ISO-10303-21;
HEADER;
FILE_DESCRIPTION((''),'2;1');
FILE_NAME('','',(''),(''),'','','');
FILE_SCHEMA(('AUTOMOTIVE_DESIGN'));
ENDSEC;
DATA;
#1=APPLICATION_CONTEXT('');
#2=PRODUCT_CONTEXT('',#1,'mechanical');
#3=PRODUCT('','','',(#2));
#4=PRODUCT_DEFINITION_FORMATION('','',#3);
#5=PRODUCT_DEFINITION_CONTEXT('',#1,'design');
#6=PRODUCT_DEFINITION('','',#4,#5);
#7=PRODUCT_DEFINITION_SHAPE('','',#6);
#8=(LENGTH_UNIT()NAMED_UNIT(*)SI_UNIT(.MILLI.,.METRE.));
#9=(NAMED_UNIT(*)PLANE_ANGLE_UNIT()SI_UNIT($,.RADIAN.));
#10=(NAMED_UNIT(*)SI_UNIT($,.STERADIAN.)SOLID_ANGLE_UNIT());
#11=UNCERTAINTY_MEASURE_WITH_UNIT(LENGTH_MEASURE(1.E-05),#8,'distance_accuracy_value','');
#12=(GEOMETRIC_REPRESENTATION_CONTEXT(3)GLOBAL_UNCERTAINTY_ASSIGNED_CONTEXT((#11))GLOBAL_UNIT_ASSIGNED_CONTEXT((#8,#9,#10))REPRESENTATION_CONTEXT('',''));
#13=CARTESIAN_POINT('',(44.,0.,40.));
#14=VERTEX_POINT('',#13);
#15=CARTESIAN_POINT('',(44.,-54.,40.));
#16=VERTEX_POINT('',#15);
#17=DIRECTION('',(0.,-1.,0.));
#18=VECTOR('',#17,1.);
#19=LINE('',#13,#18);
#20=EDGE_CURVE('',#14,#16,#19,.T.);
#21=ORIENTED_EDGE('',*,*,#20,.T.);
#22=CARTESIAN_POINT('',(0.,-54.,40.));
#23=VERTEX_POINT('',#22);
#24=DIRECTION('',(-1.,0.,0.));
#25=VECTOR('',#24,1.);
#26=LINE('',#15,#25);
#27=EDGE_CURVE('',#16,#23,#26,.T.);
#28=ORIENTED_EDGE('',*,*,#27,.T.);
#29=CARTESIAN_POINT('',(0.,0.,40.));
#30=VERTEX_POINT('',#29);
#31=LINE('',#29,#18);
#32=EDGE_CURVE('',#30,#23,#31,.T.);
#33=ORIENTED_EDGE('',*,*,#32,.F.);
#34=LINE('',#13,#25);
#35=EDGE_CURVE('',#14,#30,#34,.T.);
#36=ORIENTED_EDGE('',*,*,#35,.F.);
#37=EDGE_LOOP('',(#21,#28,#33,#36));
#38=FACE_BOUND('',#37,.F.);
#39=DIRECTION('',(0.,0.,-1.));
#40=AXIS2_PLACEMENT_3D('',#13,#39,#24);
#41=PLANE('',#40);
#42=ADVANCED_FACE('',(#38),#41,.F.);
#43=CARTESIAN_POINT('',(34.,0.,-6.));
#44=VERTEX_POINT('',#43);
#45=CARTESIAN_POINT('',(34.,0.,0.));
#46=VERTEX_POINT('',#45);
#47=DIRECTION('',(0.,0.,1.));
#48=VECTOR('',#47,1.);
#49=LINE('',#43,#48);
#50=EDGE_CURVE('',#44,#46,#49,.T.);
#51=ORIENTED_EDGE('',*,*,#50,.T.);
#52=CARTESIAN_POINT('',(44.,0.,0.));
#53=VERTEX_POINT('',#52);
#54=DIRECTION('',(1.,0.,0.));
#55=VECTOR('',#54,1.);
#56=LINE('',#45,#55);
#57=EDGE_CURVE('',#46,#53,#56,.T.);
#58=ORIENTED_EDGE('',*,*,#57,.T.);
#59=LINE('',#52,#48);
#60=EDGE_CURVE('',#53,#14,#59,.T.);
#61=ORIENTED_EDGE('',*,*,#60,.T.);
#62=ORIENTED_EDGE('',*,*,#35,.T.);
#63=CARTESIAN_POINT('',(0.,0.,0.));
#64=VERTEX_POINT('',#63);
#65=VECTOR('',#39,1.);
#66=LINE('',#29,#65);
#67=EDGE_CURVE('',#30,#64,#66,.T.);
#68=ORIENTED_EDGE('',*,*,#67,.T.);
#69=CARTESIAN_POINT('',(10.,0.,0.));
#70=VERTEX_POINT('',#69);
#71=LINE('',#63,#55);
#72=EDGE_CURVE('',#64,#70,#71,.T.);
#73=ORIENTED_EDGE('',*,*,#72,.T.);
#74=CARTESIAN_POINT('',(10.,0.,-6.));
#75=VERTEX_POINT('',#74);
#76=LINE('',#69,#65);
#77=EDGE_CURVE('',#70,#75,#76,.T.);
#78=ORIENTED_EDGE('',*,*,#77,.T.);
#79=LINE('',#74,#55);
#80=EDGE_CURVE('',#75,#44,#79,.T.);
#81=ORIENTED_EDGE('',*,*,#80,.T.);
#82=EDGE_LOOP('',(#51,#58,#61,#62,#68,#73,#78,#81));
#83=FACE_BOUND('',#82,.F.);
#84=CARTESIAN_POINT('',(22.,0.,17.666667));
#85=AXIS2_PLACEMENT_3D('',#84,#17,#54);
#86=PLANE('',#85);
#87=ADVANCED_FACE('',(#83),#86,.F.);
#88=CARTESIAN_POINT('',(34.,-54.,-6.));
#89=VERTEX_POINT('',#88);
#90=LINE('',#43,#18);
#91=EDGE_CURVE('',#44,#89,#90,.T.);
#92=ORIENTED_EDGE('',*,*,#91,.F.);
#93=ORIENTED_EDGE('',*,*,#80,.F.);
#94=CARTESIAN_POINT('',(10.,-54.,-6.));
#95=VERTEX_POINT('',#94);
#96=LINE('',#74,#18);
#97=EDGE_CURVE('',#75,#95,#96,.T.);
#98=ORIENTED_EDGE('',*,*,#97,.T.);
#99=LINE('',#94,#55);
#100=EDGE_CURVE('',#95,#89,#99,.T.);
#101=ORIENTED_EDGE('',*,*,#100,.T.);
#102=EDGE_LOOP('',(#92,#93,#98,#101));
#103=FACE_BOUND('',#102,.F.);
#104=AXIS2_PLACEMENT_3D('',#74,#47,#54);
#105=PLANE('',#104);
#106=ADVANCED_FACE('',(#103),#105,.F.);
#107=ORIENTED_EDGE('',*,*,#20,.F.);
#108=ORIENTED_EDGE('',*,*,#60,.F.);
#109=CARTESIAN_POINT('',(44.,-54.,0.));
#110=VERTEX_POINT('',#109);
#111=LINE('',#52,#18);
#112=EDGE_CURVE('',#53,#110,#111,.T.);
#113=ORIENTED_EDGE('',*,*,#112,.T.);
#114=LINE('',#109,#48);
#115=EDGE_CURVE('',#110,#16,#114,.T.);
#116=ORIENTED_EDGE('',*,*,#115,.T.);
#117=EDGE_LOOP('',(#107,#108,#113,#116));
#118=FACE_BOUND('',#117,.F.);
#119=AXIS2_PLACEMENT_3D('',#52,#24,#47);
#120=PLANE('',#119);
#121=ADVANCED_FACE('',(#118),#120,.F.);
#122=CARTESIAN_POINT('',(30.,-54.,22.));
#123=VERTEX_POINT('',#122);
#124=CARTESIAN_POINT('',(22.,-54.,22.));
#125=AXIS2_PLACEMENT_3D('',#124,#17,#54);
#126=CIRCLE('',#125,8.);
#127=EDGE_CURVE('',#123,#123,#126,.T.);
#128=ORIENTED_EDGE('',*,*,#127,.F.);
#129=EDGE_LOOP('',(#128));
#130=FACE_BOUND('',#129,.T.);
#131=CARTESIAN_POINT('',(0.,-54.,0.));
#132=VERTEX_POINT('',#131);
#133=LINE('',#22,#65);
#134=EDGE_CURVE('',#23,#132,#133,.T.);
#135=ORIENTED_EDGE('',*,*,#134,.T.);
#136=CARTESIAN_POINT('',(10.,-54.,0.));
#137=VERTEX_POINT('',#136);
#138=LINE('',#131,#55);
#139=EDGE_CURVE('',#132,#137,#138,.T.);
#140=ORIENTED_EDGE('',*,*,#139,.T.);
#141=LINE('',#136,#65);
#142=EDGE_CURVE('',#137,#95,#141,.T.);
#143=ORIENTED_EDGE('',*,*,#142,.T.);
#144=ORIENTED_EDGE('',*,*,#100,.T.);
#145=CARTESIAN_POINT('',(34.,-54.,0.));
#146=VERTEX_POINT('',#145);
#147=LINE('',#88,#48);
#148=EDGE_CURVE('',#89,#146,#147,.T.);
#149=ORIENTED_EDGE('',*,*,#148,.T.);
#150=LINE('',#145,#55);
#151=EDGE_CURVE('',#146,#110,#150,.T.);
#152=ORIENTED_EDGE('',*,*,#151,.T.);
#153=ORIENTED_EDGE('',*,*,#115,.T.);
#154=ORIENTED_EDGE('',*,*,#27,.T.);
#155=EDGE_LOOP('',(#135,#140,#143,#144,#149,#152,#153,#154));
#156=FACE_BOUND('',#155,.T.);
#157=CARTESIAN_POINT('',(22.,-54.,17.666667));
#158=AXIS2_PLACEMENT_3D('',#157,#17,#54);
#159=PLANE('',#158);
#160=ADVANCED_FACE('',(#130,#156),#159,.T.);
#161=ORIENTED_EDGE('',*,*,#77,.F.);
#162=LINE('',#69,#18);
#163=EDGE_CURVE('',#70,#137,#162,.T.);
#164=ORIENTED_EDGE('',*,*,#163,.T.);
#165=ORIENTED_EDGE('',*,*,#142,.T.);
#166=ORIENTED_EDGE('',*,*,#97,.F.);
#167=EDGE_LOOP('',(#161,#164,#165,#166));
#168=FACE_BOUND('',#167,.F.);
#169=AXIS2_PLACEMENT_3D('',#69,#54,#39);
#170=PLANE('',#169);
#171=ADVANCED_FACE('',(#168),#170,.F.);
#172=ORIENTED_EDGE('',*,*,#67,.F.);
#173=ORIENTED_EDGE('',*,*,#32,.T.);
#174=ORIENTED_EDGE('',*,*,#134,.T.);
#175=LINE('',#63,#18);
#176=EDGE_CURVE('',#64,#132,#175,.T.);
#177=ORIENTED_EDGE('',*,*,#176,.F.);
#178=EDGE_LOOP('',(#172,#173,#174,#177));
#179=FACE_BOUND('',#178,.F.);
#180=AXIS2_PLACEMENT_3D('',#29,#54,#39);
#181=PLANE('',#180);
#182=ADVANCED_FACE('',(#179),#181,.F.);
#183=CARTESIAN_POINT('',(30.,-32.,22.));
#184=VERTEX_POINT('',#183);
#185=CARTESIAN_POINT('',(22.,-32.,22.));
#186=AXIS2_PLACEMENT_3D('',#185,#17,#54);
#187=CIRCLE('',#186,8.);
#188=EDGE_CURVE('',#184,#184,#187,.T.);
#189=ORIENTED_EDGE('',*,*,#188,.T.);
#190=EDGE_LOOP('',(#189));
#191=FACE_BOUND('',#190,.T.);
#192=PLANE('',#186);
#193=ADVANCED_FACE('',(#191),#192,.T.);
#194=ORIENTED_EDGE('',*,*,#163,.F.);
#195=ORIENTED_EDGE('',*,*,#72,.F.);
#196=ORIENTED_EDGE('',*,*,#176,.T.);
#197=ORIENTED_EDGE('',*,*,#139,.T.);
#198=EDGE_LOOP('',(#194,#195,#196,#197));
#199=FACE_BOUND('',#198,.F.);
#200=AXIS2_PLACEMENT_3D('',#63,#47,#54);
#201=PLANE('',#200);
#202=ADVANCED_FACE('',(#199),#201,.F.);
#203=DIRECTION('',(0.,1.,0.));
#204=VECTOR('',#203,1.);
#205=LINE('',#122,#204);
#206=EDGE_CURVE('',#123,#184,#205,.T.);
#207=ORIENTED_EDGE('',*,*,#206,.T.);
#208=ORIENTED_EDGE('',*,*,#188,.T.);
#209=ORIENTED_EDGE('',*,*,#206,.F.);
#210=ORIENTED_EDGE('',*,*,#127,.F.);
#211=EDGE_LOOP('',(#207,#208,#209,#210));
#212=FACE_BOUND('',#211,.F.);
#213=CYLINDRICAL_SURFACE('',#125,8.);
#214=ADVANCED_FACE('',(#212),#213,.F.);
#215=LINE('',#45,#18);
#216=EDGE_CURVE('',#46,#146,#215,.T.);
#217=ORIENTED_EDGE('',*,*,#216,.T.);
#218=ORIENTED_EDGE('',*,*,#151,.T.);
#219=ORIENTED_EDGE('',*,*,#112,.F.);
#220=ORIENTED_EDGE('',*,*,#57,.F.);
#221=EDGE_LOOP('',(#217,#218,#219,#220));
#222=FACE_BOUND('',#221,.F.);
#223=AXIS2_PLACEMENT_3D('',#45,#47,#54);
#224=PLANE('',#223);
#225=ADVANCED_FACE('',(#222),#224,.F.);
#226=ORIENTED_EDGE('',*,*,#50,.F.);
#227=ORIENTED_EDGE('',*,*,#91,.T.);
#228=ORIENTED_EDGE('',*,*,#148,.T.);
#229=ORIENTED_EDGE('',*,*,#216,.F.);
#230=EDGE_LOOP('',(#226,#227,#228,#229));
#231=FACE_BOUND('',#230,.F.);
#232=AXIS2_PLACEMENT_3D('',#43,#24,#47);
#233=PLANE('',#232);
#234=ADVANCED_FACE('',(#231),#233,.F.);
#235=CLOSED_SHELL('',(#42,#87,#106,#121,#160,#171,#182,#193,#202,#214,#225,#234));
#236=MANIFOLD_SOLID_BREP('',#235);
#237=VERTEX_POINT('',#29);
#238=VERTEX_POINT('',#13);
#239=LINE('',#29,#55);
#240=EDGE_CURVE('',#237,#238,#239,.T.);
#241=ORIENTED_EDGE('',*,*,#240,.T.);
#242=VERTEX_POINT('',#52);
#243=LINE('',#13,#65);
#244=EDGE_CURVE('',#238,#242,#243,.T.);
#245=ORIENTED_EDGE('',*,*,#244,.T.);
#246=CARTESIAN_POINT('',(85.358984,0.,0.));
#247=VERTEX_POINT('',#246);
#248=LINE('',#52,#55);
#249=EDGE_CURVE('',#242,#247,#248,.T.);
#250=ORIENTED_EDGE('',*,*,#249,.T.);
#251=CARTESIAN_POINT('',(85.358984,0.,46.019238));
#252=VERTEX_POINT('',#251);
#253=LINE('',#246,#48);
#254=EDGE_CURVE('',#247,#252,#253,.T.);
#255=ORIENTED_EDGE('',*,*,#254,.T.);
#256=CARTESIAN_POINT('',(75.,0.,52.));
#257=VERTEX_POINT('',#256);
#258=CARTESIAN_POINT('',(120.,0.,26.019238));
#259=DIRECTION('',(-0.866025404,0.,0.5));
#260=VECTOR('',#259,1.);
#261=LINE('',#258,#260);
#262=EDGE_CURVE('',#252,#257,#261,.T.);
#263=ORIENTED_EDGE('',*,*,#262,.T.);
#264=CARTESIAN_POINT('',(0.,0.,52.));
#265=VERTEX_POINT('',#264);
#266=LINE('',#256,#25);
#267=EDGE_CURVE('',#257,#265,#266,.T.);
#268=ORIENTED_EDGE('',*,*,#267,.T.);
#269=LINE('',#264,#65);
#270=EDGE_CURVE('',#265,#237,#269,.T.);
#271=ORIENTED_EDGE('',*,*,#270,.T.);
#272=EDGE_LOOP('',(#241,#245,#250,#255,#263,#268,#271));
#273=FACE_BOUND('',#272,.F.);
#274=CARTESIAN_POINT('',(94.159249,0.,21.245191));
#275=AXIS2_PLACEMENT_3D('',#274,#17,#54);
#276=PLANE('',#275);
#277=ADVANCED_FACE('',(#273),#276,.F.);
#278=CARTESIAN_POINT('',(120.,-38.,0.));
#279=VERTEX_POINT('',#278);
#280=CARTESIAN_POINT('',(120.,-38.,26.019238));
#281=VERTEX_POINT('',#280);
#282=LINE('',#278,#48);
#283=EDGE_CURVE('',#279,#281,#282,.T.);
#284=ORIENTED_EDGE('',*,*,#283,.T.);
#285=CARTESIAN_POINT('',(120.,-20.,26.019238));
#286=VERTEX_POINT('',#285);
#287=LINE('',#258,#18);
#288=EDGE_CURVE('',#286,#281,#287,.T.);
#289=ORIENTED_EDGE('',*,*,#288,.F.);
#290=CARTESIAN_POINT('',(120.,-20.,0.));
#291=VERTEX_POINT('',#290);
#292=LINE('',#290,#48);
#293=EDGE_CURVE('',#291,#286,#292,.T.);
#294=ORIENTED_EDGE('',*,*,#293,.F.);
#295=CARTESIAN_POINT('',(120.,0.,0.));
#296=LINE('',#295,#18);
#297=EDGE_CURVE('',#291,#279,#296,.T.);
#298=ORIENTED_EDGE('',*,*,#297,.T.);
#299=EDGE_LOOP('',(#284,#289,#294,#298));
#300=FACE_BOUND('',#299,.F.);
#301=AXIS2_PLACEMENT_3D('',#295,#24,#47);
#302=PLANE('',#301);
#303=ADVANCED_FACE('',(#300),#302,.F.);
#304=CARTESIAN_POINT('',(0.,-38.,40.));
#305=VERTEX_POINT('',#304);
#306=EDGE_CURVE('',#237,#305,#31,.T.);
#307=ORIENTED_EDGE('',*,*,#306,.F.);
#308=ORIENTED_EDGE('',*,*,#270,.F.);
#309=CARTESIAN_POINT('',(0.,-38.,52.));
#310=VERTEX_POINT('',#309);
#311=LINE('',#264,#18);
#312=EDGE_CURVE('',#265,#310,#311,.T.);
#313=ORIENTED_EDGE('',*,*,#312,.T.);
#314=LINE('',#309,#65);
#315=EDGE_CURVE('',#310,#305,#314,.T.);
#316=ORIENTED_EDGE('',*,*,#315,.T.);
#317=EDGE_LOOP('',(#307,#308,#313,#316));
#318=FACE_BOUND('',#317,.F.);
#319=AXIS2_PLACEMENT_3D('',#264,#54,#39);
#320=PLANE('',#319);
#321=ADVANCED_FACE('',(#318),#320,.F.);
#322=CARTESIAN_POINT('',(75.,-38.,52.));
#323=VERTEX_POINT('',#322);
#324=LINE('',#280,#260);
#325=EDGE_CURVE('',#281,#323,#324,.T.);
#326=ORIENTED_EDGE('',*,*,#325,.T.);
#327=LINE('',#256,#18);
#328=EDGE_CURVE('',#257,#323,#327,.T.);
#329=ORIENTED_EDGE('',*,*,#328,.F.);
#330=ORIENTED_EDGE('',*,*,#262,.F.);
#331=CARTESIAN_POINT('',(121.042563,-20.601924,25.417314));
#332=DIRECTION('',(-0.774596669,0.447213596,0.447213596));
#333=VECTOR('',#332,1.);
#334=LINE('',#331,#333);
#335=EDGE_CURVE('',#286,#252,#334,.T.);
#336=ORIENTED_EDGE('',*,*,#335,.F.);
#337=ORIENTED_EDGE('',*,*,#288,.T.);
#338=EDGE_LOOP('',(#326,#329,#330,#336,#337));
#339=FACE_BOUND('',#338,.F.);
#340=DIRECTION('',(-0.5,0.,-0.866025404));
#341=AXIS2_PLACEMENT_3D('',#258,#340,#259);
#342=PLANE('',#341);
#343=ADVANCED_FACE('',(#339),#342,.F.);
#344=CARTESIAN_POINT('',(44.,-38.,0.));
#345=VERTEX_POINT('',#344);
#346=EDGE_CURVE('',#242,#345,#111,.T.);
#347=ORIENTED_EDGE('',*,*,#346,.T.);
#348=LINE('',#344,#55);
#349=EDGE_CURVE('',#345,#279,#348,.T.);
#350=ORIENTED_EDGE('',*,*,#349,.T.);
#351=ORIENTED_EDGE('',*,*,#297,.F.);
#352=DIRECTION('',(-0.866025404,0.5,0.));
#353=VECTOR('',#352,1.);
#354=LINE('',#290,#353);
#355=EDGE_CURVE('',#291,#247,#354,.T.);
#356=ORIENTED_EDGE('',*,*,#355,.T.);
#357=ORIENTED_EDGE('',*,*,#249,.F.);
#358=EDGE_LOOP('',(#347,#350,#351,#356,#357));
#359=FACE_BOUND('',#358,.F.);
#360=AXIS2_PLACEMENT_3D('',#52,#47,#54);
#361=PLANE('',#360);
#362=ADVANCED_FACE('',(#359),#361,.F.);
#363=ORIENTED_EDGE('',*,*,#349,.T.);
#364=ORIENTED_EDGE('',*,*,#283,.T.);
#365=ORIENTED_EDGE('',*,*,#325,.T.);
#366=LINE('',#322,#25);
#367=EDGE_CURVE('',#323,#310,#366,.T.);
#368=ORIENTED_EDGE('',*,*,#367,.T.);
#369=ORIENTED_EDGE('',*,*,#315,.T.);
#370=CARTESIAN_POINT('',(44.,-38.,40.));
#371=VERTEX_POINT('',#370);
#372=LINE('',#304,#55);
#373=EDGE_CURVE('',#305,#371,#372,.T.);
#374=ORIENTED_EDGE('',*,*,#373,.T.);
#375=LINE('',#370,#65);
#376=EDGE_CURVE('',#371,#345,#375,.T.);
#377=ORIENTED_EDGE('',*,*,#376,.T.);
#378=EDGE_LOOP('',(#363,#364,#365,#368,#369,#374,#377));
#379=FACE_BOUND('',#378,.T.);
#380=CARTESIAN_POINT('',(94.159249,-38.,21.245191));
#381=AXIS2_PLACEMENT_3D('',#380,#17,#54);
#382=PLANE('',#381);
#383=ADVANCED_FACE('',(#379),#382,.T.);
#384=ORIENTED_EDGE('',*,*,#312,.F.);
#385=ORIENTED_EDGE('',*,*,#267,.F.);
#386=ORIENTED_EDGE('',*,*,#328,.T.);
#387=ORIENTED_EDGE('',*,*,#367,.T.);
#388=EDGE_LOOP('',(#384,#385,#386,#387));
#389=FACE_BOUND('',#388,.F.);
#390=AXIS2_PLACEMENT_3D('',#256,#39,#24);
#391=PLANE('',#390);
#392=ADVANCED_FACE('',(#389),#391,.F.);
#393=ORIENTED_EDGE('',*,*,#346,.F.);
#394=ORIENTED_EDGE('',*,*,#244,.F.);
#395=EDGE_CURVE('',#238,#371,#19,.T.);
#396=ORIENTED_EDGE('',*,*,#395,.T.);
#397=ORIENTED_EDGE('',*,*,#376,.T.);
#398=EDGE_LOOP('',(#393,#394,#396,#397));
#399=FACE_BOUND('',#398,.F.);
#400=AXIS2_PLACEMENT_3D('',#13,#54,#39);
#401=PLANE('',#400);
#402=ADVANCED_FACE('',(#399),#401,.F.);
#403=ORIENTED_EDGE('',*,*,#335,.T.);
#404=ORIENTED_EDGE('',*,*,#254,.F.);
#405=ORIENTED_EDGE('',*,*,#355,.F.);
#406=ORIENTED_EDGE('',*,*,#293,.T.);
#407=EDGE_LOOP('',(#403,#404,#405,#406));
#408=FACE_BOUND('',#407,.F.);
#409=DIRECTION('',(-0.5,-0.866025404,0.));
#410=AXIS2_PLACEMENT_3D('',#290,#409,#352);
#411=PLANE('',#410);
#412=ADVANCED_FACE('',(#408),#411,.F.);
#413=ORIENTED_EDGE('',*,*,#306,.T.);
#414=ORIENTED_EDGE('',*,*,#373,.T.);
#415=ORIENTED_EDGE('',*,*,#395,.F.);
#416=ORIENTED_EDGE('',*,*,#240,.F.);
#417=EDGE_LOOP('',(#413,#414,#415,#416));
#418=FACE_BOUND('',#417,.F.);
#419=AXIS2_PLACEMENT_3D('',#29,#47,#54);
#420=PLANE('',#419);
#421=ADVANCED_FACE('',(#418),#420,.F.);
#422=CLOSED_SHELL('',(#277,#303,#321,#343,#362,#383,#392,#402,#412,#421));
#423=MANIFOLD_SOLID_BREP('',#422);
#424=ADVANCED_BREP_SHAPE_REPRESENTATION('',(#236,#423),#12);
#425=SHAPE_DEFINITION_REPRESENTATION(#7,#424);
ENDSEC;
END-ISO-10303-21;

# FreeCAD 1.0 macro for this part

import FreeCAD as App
import Part
import Sketcher
from FreeCAD import Vector
Q = App.Units.Quantity


def add_polygon(sketch, points):
    """Adds a closed chain of lines whose ends are joined by coincident constraints."""
    first, n = sketch.GeometryCount, len(points)
    for a, b in zip(points, points[1:] + points[:1]):
        sketch.addGeometry(Part.LineSegment(App.Vector(*a, 0), App.Vector(*b, 0)), False)
    for i in range(n):
        sketch.addConstraint(Sketcher.Constraint("Coincident", first + i, 2, first + (i + 1) % n, 1))

doc = App.newDocument("Part")
params = doc.addObject("Spreadsheet::Sheet", "Params")
for row, (alias, value) in enumerate([
    ("sketch1_width", "75 mm"),
    ("sketch1_width2", "44 mm"),
    ("sketch1_width3", "76 mm"),
    ("sketch1_height", "12 mm"),
    ("sketch1_height2", "40 mm"),
    ("pad1_length", "38 mm"),
    ("sketch2_height", "20 mm"),
    ("sketch3_width", "10 mm"),
    ("sketch3_width2", "24 mm"),
    ("sketch3_height", "40 mm"),
    ("sketch3_height2", "6 mm"),
    ("pad2_length", "54 mm"),
    ("sketch4_diameter", "16 mm"),
    ("pocket2_length", "22 mm"),
], start=1):
    params.set(f"A{row}", alias)
    params.set(f"B{row}", "=" + value)
    params.setAlias(f"B{row}", alias)

body = doc.addObject("PartDesign::Body", "Body")

sketch1 = body.newObject("Sketcher::SketchObject", "Sketch")
sketch1.AttachmentSupport = (doc.getObject("XZ_Plane"), [""])
sketch1.MapMode = "FlatFace"
add_polygon(sketch1, [(120, 26.019238), (75, 52), (0, 52), (0, 40), (44, 40), (44, 0), (120, 0)])
sketch1.addConstraint([
    Sketcher.Constraint("Horizontal", 1),
    Sketcher.Constraint("Vertical", 2),
    Sketcher.Constraint("Horizontal", 3),
    Sketcher.Constraint("Vertical", 4),
    Sketcher.Constraint("Horizontal", 5),
    Sketcher.Constraint("Vertical", 6),
    Sketcher.Constraint("PointOnObject", 1, 2, -2),
    Sketcher.Constraint("PointOnObject", 4, 2, -1),
    Sketcher.Constraint("DistanceX", 1, 2, 1, 1, 75.0),
    Sketcher.Constraint("DistanceX", 3, 1, 3, 2, 44.0),
    Sketcher.Constraint("DistanceX", 5, 1, 5, 2, 76.0),
    Sketcher.Constraint("DistanceY", 2, 2, 2, 1, 12.0),
    Sketcher.Constraint("DistanceY", 4, 2, 4, 1, 40.0),
    Sketcher.Constraint("Angle", 0, Q("150 deg")),
])
sketch1.setExpression("Constraints[15]", "Params.sketch1_width")
sketch1.setExpression("Constraints[16]", "Params.sketch1_width2")
sketch1.setExpression("Constraints[17]", "Params.sketch1_width3")
sketch1.setExpression("Constraints[18]", "Params.sketch1_height")
sketch1.setExpression("Constraints[19]", "Params.sketch1_height2")
pad1 = body.newObject("PartDesign::Pad", "Pad")
pad1.Profile = sketch1
pad1.setExpression("Length", "Params.pad1_length")

sketch2 = body.newObject("Sketcher::SketchObject", "Sketch001")
sketch2.AttachmentSupport = (doc.getObject("XY_Plane"), [""])
sketch2.MapMode = "FlatFace"
add_polygon(sketch2, [(85.358984, 0), (120, 0), (120, -20)])
sketch2.addConstraint([
    Sketcher.Constraint("Horizontal", 0),
    Sketcher.Constraint("Vertical", 1),
    Sketcher.Constraint("PointOnObject", 0, 2, -1),
    Sketcher.Constraint("DistanceY", 1, 2, 1, 1, 20.0),
    Sketcher.Constraint("Angle", 2, Q("150 deg")),
    Sketcher.Constraint("DistanceX", -1, 1, 0, 2, 120.0),
])
sketch2.setExpression("Constraints[6]", "Params.sketch2_height")
pocket1 = body.newObject("PartDesign::Pocket", "Pocket")
pocket1.Profile = sketch2
pocket1.Type = "ThroughAll"
pocket1.Reversed = True
body2 = doc.addObject("PartDesign::Body", "Body001")

sketch3 = body2.newObject("Sketcher::SketchObject", "Sketch002")
sketch3.AttachmentSupport = (doc.getObject("XZ_Plane001"), [""])
sketch3.MapMode = "FlatFace"
add_polygon(sketch3, [(0, 40), (0, 0), (10, 0), (10, -6), (34, -6), (34, 0), (44, 0), (44, 40)])
sketch3.addConstraint([
    Sketcher.Constraint("Vertical", 0),
    Sketcher.Constraint("Horizontal", 1),
    Sketcher.Constraint("Vertical", 2),
    Sketcher.Constraint("Horizontal", 3),
    Sketcher.Constraint("Vertical", 4),
    Sketcher.Constraint("Horizontal", 5),
    Sketcher.Constraint("Vertical", 6),
    Sketcher.Constraint("Horizontal", 7),
    Sketcher.Constraint("Coincident", 0, 2, -1, 1),
    Sketcher.Constraint("PointOnObject", 4, 2, -1),
    Sketcher.Constraint("Equal", 1, 5),
    Sketcher.Constraint("DistanceX", 1, 1, 1, 2, 10.0),
    Sketcher.Constraint("DistanceX", 3, 1, 3, 2, 24.0),
    Sketcher.Constraint("DistanceY", 0, 2, 0, 1, 40.0),
    Sketcher.Constraint("DistanceY", 2, 2, 2, 1, 6.0),
])
sketch3.setExpression("Constraints[19]", "Params.sketch3_width")
sketch3.setExpression("Constraints[20]", "Params.sketch3_width2")
sketch3.setExpression("Constraints[21]", "Params.sketch3_height")
sketch3.setExpression("Constraints[22]", "Params.sketch3_height2")
pad2 = body2.newObject("PartDesign::Pad", "Pad001")
pad2.Profile = sketch3
pad2.setExpression("Length", "Params.pad2_length")

sketch4 = body2.newObject("Sketcher::SketchObject", "Sketch003")
sketch4.AttachmentSupport = (doc.getObject("XZ_Plane001"), [""])
sketch4.MapMode = "FlatFace"
sketch4.AttachmentOffset = App.Placement(Vector(0, 0, 54), App.Rotation())
sketch4.addGeometry(Part.Circle(Vector(22, 22, 0), Vector(0, 0, 1), 8), False)
sketch4.addConstraint([
    Sketcher.Constraint("Diameter", 0, 16.0),
    Sketcher.Constraint("DistanceX", -1, 1, 0, 3, 22.0),
    Sketcher.Constraint("DistanceY", -1, 1, 0, 3, 22.0),
])
sketch4.setExpression("Constraints[0]", "Params.sketch4_diameter")
pocket2 = body2.newObject("PartDesign::Pocket", "Pocket001")
pocket2.Profile = sketch4
pocket2.setExpression("Length", "Params.pocket2_length")

doc.recompute()
